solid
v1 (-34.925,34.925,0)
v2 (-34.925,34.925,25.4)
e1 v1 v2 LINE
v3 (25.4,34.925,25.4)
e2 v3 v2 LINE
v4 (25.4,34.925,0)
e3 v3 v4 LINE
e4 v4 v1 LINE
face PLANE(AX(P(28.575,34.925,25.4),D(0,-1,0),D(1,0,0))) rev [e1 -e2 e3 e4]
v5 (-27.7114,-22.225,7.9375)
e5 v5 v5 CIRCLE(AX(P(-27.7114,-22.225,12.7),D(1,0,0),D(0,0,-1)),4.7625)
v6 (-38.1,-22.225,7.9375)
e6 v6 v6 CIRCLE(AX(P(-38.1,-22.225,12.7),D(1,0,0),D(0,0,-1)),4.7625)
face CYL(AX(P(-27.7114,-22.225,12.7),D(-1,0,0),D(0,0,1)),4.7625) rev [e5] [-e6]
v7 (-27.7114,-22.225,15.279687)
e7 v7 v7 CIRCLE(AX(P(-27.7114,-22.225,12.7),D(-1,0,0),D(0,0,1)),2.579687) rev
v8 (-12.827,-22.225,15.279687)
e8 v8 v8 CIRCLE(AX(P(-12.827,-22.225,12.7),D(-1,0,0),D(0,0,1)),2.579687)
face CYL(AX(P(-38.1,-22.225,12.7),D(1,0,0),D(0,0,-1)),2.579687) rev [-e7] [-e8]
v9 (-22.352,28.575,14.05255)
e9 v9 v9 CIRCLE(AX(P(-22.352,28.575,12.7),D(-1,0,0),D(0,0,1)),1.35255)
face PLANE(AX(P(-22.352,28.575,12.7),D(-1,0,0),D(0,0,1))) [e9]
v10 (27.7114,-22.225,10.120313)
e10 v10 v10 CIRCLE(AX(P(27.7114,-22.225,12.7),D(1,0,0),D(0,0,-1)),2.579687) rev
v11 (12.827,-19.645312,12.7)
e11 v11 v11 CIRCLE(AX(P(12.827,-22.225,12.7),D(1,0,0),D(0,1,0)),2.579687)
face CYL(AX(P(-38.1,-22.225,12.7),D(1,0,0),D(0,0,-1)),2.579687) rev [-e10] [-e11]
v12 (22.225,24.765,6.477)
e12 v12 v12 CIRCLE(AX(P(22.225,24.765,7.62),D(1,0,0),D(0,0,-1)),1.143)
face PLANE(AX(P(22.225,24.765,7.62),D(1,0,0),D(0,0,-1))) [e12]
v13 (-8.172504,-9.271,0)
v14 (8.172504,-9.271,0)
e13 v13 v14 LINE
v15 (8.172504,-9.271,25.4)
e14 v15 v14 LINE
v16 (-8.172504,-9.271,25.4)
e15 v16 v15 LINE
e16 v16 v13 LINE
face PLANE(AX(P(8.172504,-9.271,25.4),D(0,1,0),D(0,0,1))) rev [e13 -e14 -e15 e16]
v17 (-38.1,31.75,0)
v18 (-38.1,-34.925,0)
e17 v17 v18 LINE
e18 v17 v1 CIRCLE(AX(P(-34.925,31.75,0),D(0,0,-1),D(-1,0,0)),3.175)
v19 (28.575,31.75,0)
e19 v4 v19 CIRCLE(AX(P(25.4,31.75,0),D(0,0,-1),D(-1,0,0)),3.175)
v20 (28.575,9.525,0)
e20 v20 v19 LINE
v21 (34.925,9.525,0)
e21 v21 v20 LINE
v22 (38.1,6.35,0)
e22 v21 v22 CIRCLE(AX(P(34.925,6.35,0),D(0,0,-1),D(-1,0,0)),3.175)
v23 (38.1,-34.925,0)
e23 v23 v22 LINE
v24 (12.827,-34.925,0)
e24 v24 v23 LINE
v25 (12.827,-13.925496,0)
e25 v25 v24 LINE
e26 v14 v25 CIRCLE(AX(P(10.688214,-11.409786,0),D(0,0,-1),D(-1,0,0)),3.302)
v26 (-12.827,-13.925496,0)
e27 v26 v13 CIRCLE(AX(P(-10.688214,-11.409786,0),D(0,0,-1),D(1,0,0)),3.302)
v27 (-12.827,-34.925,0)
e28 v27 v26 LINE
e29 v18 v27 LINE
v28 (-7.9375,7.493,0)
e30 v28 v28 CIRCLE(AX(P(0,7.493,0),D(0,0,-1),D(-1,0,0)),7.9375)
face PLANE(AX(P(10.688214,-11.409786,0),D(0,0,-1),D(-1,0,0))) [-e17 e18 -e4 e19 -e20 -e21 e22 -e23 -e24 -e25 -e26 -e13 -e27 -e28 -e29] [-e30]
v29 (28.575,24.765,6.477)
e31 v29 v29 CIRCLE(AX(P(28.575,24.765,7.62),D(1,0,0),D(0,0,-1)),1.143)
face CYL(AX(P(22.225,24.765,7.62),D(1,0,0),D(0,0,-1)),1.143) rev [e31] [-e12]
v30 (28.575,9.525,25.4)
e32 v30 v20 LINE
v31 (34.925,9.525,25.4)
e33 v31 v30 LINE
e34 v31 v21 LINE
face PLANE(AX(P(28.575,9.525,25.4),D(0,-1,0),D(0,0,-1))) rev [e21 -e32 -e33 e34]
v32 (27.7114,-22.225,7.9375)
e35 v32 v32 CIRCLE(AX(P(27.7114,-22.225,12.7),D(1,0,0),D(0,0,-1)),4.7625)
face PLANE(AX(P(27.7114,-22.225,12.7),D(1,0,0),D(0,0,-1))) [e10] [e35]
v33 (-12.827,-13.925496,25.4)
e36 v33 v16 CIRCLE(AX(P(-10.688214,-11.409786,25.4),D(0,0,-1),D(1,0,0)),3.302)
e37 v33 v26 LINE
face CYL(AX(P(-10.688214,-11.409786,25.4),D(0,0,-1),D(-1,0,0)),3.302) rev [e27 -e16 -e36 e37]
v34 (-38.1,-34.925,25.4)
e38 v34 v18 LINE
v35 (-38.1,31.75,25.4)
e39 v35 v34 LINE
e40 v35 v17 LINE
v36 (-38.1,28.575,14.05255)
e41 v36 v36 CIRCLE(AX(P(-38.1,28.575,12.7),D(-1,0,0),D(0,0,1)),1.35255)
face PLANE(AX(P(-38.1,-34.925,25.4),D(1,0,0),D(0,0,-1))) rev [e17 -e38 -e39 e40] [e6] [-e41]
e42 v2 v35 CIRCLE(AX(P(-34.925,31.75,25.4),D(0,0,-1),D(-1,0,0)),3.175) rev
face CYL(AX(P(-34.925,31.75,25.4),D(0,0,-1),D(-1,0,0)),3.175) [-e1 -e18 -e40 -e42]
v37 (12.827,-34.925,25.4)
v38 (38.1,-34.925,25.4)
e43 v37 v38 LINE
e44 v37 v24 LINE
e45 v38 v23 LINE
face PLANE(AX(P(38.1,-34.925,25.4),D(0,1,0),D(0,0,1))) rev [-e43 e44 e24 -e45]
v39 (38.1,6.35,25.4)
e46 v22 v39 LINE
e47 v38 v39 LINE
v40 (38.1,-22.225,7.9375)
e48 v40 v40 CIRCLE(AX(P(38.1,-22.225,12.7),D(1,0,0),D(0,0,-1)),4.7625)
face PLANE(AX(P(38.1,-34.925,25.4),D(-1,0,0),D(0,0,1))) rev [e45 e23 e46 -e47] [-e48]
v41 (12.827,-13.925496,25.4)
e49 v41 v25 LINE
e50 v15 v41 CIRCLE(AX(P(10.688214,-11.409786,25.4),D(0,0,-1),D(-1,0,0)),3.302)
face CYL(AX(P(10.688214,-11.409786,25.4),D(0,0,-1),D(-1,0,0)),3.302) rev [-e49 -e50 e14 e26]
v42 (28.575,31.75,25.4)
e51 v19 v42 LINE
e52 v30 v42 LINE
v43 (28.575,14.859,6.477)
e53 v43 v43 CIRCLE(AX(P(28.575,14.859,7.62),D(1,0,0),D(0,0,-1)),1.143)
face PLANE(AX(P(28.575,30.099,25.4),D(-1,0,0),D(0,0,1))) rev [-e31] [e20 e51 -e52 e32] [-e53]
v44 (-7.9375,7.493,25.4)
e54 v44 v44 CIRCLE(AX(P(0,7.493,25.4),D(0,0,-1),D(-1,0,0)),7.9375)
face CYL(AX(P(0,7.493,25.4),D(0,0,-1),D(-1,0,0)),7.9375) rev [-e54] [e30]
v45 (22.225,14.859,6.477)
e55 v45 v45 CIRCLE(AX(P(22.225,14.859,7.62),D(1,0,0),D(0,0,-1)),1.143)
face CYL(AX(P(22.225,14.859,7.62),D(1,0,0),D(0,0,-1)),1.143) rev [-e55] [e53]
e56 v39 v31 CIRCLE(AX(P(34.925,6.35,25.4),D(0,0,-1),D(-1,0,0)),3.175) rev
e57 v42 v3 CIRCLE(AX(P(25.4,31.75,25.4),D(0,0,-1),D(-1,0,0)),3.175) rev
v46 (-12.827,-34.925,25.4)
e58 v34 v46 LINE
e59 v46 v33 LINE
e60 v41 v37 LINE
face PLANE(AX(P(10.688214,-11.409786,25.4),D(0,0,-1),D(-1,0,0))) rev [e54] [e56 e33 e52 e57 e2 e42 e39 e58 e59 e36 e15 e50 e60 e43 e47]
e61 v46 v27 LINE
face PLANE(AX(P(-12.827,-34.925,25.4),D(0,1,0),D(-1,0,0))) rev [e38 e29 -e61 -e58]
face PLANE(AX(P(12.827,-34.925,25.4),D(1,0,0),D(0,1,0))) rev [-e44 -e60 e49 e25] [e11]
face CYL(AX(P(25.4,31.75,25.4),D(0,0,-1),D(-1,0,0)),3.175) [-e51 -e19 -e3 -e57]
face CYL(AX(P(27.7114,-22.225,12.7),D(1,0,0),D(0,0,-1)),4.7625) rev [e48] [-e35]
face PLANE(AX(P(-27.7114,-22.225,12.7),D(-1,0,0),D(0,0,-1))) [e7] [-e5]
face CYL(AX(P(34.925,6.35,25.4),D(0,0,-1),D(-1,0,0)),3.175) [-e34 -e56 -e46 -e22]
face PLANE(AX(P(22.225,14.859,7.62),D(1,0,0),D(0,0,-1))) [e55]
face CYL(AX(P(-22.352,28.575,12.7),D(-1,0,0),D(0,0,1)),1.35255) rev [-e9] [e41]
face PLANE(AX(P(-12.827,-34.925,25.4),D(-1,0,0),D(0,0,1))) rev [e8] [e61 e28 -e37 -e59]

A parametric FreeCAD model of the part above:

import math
import FreeCAD as App
import Part
import Sketcher
Q = App.Units.Quantity


def edges_at(feature, points):
    """Names of the edges that pass closest to the given points."""
    edges = feature.Shape.Edges
    near = lambda p: min(range(len(edges)), key=lambda i: edges[i].distToShape(Part.Vertex(*p))[0])
    return sorted({f"Edge{near(p) + 1}" for p in points})

doc = App.newDocument("Part")
body = doc.addObject("PartDesign::Body", "Body")

# Sketch on XY plane
sketch1 = doc.addObject("Sketcher::SketchObject", "Sketch")
body.addObject(sketch1)
sketch1.AttachmentSupport = (doc.XY_Plane, [""])
sketch1.MapMode = "FlatFace"
sketch1.addGeometry([
    Part.LineSegment(App.Vector(12.8, -34.9, 0), App.Vector(38.1, -34.9, 0)),  # 0
    Part.LineSegment(App.Vector(38.1, -34.9, 0), App.Vector(38.1, 9.5, 0)),  # 1
    Part.LineSegment(App.Vector(38.1, 9.5, 0), App.Vector(28.6, 9.5, 0)),  # 2
    Part.LineSegment(App.Vector(28.6, 9.5, 0), App.Vector(28.6, 34.9, 0)),  # 3
    Part.LineSegment(App.Vector(28.6, 34.9, 0), App.Vector(-38.1, 34.9, 0)),  # 4
    Part.LineSegment(App.Vector(-38.1, 34.9, 0), App.Vector(-38.1, -34.9, 0)),  # 5
    Part.LineSegment(App.Vector(-38.1, -34.9, 0), App.Vector(-12.8, -34.9, 0)),  # 6
    Part.LineSegment(App.Vector(-12.8, -34.9, 0), App.Vector(-12.8, -13.9, 0)),  # 7
    Part.ArcOfCircle(Part.Circle(App.Vector(-10.7, -11.4, 0), App.Vector(0, 0, 1), 3.3), math.radians(40), math.radians(230)),  # 8
    Part.LineSegment(App.Vector(-8.2, -9.3, 0), App.Vector(8.2, -9.3, 0)),  # 9
    Part.ArcOfCircle(Part.Circle(App.Vector(10.7, -11.4, 0), App.Vector(0, 0, 1), 3.3), math.radians(-50), math.radians(140)),  # 10
    Part.LineSegment(App.Vector(12.8, -13.9, 0), App.Vector(12.8, -34.9, 0)),  # 11
    Part.Circle(App.Vector(0, 7.5, 0), App.Vector(0, 0, 1), 6.3),  # 12
], False)
sketch1.addConstraint([
    Sketcher.Constraint("Coincident", 0, 2, 1, 1),
    Sketcher.Constraint("Coincident", 1, 2, 2, 1),
    Sketcher.Constraint("Coincident", 2, 2, 3, 1),
    Sketcher.Constraint("Coincident", 3, 2, 4, 1),
    Sketcher.Constraint("Coincident", 4, 2, 5, 1),
    Sketcher.Constraint("Coincident", 5, 2, 6, 1),
    Sketcher.Constraint("Coincident", 6, 2, 7, 1),
    Sketcher.Constraint("Coincident", 7, 2, 8, 2),
    Sketcher.Constraint("Coincident", 8, 1, 9, 1),
    Sketcher.Constraint("Coincident", 9, 2, 10, 2),
    Sketcher.Constraint("Coincident", 10, 1, 11, 1),
    Sketcher.Constraint("Coincident", 11, 2, 0, 1),
    Sketcher.Constraint("Horizontal", 0),
    Sketcher.Constraint("Vertical", 1),
    Sketcher.Constraint("Horizontal", 2),
    Sketcher.Constraint("Vertical", 3),
    Sketcher.Constraint("Horizontal", 4),
    Sketcher.Constraint("Vertical", 5),
    Sketcher.Constraint("Horizontal", 6),
    Sketcher.Constraint("Vertical", 7),
    Sketcher.Constraint("Horizontal", 9),
    Sketcher.Constraint("Vertical", 11),
    Sketcher.Constraint("Equal", 8, 10),
    Sketcher.Constraint("Symmetric", 0, 2, 4, 2, -1, 1),
    Sketcher.Constraint("Symmetric", 8, 3, 10, 3, -2),
    Sketcher.Constraint("Symmetric", 6, 2, 11, 2, -2),
    Sketcher.Constraint("PointOnObject", 12, 3, -2),
    Sketcher.Constraint("Diameter", 12, Q("0.5 in")),
    Sketcher.Constraint("DistanceY", 3, 1, 3, 2, Q("1 in")),
    Sketcher.Constraint("Radius", 8, Q("0.13 in")),
    Sketcher.Constraint("DistanceX", 5, 2, 0, 2, Q("3 in")),
    Sketcher.Constraint("DistanceY", 1, 1, 1, 2, Q("1.75 in")),
    Sketcher.Constraint("DistanceX", 0, 1, 0, 2, Q("0.995 in")),
    Sketcher.Constraint("DistanceX", 2, 2, 2, 1, Q("0.375 in")),
    Sketcher.Constraint("DistanceY", 0, 2, 12, 3, Q("1.67 in")),
    Sketcher.Constraint("DistanceY", 8, 1, 12, 3, Q("0.66 in")),
    Sketcher.Constraint("DistanceX", 9, 1, 9, 2, 16.345007),
    Sketcher.Constraint("DistanceY", 7, 1, 7, 2, 20.999504),
])
pad1 = doc.addObject("PartDesign::Pad", "Pad")
body.addObject(pad1)
pad1.Profile = sketch1
pad1.Length = Q("1 in")

# Sketch on XY plane
sketch2 = doc.addObject("Sketcher::SketchObject", "Sketch001")
body.addObject(sketch2)
sketch2.AttachmentSupport = (doc.XY_Plane, [""])
sketch2.MapMode = "FlatFace"
sketch2.addGeometry(Part.Circle(App.Vector(0, 7, 0), App.Vector(0, 0, 1), 8), False)
sketch2.addConstraint([
    Sketcher.Constraint("PointOnObject", 0, 3, -2),
    Sketcher.Constraint("Diameter", 0, Q("0.625 in")),
    Sketcher.Constraint("DistanceY", -1, 1, 0, 3, Q("0.295 in")),
])
pocket1 = doc.addObject("PartDesign::Pocket", "Pocket")
body.addObject(pocket1)
pocket1.Profile = sketch2
pocket1.Type = "ThroughAll"
pocket1.Reversed = True
doc.recompute()

fillet = doc.addObject("PartDesign::Fillet", "Fillet")
body.addObject(fillet)
fillet.Base = (pocket1, edges_at(pocket1, [(-38.1, 34.925, 12.7), (28.575, 34.925, 12.7), (38.1, 9.525, 12.7)]))
fillet.Radius = Q("0.125 in")

# Sketch on YZ plane
sketch3 = doc.addObject("Sketcher::SketchObject", "Sketch002")
body.addObject(sketch3)
sketch3.AttachmentSupport = (doc.YZ_Plane, [""])
sketch3.MapMode = "FlatFace"
sketch3.AttachmentOffset = App.Placement(App.Vector(0, 0, -1.5 * 25.4), App.Rotation())
sketch3.addGeometry(Part.Circle(App.Vector(-22.2, 12.7, 0), App.Vector(0, 0, 1), 2.6), False)
sketch3.addConstraint([
    Sketcher.Constraint("Diameter", 0, Q("0.203125 in")),
    Sketcher.Constraint("DistanceY", -1, 1, 0, 3, Q("0.5 in")),
    Sketcher.Constraint("DistanceX", 0, 3, -1, 1, Q("0.875 in")),
])
pocket2 = doc.addObject("PartDesign::Pocket", "Pocket001")
body.addObject(pocket2)
pocket2.Profile = sketch3
pocket2.Length = Q("3 in")
pocket2.Reversed = True

# Sketch on YZ plane
sketch4 = doc.addObject("Sketcher::SketchObject", "Sketch003")
body.addObject(sketch4)
sketch4.AttachmentSupport = (doc.YZ_Plane, [""])
sketch4.MapMode = "FlatFace"
sketch4.AttachmentOffset = App.Placement(App.Vector(0, 0, -1.5 * 25.4), App.Rotation())
sketch4.addGeometry(Part.Circle(App.Vector(28.6, 12.7, 0), App.Vector(0, 0, 1), 1.4), False)
sketch4.addConstraint([
    Sketcher.Constraint("Diameter", 0, Q("0.1065 in")),
    Sketcher.Constraint("DistanceY", -1, 1, 0, 3, Q("0.5 in")),
    Sketcher.Constraint("DistanceX", -1, 1, 0, 3, Q("1.125 in")),
])
pocket3 = doc.addObject("PartDesign::Pocket", "Pocket002")
body.addObject(pocket3)
pocket3.Profile = sketch4
pocket3.Length = Q("0.62 in")
pocket3.Reversed = True

# Sketch on YZ plane
sketch5 = doc.addObject("Sketcher::SketchObject", "Sketch004")
body.addObject(sketch5)
sketch5.AttachmentSupport = (doc.YZ_Plane, [""])
sketch5.MapMode = "FlatFace"
sketch5.AttachmentOffset = App.Placement(App.Vector(0, 0, 1.5 * 25.4), App.Rotation())
sketch5.addGeometry(Part.Circle(App.Vector(-22.2, 12.7, 0), App.Vector(0, 0, 1), 4.8), False)
sketch5.addConstraint([
    Sketcher.Constraint("Diameter", 0, Q("0.375 in")),
    Sketcher.Constraint("DistanceY", -1, 1, 0, 3, Q("0.5 in")),
    Sketcher.Constraint("DistanceX", 0, 3, -1, 1, Q("0.875 in")),
])
pocket4 = doc.addObject("PartDesign::Pocket", "Pocket003")
body.addObject(pocket4)
pocket4.Profile = sketch5
pocket4.Length = Q("0.409 in")
doc.recompute()

mirrored = doc.addObject("PartDesign::Mirrored", "Mirrored")
body.addObject(mirrored)
mirrored.Originals = [pocket4]
mirrored.MirrorPlane = (doc.YZ_Plane, [""])
body.Tip = mirrored

# Sketch on YZ plane
sketch6 = doc.addObject("Sketcher::SketchObject", "Sketch005")
body.addObject(sketch6)
sketch6.AttachmentSupport = (doc.YZ_Plane, [""])
sketch6.MapMode = "FlatFace"
sketch6.AttachmentOffset = App.Placement(App.Vector(0, 0, 1.125 * 25.4), App.Rotation())
sketch6.addGeometry([
    Part.Circle(App.Vector(14.9, 7.6, 0), App.Vector(0, 0, 1), 1.1),
    Part.Circle(App.Vector(24.8, 7.6, 0), App.Vector(0, 0, 1), 1.1),
], False)
sketch6.addConstraint([
    Sketcher.Constraint("Equal", 0, 1),
    Sketcher.Constraint("Horizontal", 0, 3, 1, 3),
    Sketcher.Constraint("Diameter", 0, Q("0.09 in")),
    Sketcher.Constraint("DistanceY", -1, 1, 0, 3, Q("0.3 in")),
    Sketcher.Constraint("DistanceX", 0, 3, 1, 3, Q("0.39 in")),
    Sketcher.Constraint("DistanceX", -1, 1, 0, 3, Q("0.585 in")),
])
pocket5 = doc.addObject("PartDesign::Pocket", "Pocket004")
body.addObject(pocket5)
pocket5.Profile = sketch6
pocket5.Length = Q("0.25 in")

doc.recompute()
